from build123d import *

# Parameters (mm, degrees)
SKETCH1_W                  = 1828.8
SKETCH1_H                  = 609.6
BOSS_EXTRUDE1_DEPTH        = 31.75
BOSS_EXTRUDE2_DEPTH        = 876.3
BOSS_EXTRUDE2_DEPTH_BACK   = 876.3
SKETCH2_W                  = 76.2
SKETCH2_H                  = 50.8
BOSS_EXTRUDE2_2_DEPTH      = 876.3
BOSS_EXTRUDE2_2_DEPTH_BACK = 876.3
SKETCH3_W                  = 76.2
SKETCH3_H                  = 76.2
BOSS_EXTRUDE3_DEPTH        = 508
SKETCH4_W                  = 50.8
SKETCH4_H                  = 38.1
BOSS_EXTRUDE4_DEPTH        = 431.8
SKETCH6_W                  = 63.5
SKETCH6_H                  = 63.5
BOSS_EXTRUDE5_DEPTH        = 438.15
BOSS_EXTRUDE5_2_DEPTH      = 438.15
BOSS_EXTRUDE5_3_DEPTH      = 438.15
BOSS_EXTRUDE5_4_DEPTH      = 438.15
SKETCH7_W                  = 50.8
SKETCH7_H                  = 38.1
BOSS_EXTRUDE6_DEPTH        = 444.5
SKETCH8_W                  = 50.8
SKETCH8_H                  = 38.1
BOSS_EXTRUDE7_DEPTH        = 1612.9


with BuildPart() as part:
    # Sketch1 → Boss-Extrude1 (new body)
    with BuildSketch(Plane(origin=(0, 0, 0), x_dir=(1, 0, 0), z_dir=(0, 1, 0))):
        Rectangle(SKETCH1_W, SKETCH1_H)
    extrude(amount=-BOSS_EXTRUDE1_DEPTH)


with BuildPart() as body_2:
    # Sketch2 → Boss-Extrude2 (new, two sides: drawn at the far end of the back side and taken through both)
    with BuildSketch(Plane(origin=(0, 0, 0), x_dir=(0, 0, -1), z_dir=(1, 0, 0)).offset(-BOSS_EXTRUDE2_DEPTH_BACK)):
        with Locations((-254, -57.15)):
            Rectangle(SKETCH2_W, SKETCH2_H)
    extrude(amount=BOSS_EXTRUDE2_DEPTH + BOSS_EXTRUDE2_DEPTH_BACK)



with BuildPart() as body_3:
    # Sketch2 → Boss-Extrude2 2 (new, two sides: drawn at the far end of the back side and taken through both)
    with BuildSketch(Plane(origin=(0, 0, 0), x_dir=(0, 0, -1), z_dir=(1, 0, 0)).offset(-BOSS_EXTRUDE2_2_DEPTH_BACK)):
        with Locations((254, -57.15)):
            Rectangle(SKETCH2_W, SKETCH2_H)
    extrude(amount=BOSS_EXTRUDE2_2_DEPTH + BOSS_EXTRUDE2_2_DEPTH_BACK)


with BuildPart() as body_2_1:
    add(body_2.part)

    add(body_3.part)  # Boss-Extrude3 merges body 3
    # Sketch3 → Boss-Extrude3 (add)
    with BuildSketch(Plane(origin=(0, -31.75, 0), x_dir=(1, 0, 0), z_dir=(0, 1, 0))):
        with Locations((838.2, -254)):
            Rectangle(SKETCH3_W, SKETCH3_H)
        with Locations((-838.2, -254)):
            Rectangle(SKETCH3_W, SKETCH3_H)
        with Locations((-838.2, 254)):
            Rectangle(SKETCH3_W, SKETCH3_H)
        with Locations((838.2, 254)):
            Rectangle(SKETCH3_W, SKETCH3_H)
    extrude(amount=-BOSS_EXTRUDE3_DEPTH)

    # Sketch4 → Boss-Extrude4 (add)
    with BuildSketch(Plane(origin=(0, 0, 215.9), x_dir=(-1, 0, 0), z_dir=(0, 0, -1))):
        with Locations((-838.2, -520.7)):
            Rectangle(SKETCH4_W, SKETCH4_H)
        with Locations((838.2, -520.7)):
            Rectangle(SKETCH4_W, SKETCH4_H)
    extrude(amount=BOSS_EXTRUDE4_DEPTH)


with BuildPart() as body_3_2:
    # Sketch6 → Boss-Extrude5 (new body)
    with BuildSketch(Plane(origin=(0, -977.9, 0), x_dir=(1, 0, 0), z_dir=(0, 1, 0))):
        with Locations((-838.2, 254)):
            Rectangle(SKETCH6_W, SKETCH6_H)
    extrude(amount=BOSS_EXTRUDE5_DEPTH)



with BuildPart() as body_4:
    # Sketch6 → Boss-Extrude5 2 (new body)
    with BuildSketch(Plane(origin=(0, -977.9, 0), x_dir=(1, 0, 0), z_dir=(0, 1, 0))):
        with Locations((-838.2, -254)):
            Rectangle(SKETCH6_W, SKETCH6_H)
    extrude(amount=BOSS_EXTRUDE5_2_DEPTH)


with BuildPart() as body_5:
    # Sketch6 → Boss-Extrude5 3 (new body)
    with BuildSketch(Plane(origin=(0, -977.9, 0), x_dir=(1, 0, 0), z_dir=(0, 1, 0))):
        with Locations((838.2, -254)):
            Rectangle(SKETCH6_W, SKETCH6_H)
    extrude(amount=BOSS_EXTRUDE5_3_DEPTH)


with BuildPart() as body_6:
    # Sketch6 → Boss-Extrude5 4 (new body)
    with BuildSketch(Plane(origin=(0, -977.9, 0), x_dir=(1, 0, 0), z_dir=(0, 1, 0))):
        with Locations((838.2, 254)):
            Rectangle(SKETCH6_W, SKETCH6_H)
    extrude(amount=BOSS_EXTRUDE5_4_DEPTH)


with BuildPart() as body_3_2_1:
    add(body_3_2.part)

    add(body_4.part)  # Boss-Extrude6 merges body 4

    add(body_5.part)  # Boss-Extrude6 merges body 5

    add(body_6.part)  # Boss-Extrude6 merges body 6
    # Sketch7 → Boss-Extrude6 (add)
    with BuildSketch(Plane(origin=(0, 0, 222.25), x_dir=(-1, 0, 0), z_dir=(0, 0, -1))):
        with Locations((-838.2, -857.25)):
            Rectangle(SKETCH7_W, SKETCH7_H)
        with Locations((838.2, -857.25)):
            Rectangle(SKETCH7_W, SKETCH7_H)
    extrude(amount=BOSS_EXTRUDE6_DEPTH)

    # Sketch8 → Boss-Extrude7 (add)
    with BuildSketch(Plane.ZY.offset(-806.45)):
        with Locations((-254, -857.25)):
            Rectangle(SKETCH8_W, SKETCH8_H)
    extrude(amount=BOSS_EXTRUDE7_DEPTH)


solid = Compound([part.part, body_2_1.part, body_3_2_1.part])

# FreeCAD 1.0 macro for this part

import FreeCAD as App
import Part
import Sketcher

V = App.Vector
Q = App.Units.Quantity


def add_polygon(sketch, points):
    """Adds a closed chain of lines whose ends are joined by coincident constraints."""
    first, n = sketch.GeometryCount, len(points)
    for a, b in zip(points, points[1:] + points[:1]):
        sketch.addGeometry(Part.LineSegment(App.Vector(*a, 0), App.Vector(*b, 0)), False)
    for i in range(n):
        sketch.addConstraint(Sketcher.Constraint("Coincident", first + i, 2, first + (i + 1) % n, 1))

doc = App.newDocument("Part")
params = doc.addObject("Spreadsheet::Sheet", "Params")
for row, (alias, value) in enumerate([
    ("sketch1_width", "72 in"),
    ("sketch1_height", "24 in"),
    ("pad1_length", "1.25 in"),
    ("sketch2_width", "2 in"),
    ("sketch2_height", "3 in"),
    ("pad2_length", "34.5 in"),
    ("pad2_length2", "34.5 in"),
    ("sketch3_width", "2 in"),
    ("sketch3_height", "3 in"),
    ("pad3_length", "34.5 in"),
    ("pad3_length2", "34.5 in"),
    ("sketch4_width", "3 in"),
    ("pad4_length", "20 in"),
    ("sketch5_width", "2 in"),
    ("sketch5_height", "1.5 in"),
    ("pad5_length", "17 in"),
    ("sketch6_width", "2.5 in"),
    ("pad6_length", "17.25 in"),
    ("sketch7_width", "2.5 in"),
    ("pad7_length", "17.25 in"),
    ("sketch8_width", "2.5 in"),
    ("pad8_length", "17.25 in"),
    ("sketch9_width", "2.5 in"),
    ("pad9_length", "17.25 in"),
    ("sketch10_width", "2 in"),
    ("sketch10_height", "1.5 in"),
    ("pad10_length", "17.5 in"),
    ("sketch11_height", "2 in"),
    ("sketch11_width", "1.5 in"),
    ("pad11_length", "63.5 in"),
], start=1):
    params.set(f"A{row}", alias)
    params.set(f"B{row}", "=" + value)
    params.setAlias(f"B{row}", alias)

body = doc.addObject("PartDesign::Body", "Body")

sketch1 = body.newObject("Sketcher::SketchObject", "Sketch")
sketch1.AttachmentSupport = (doc.getObject("XZ_Plane"), [""])
sketch1.MapMode = "FlatFace"
add_polygon(sketch1, [(-914, -305), (-914, 305), (914, 305), (914, -305)])
sketch1.addConstraint(Sketcher.Constraint("Vertical", 0))
sketch1.addConstraint(Sketcher.Constraint("Horizontal", 1))
sketch1.addConstraint(Sketcher.Constraint("Vertical", 2))
sketch1.addConstraint(Sketcher.Constraint("Horizontal", 3))
sketch1.addConstraint(Sketcher.Constraint("Symmetric", 0, 2, 2, 2, -1, 1))
sketch1.addConstraint(Sketcher.Constraint("DistanceX", 1, 1, 1, 2, Q("72 in")))
sketch1.addConstraint(Sketcher.Constraint("DistanceY", 0, 1, 0, 2, Q("24 in")))
sketch1.setExpression("Constraints[9]", "Params.sketch1_width")
sketch1.setExpression("Constraints[10]", "Params.sketch1_height")
pad1 = body.newObject("PartDesign::Pad", "Pad")
pad1.Profile = sketch1
pad1.setExpression("Length", "Params.pad1_length")
body2 = doc.addObject("PartDesign::Body", "Body001")

sketch2 = body2.newObject("Sketcher::SketchObject", "Sketch001")
sketch2.AttachmentSupport = (doc.getObject("YZ_Plane001"), [""])
sketch2.MapMode = "FlatFace"
add_polygon(sketch2, [(-32, 292), (-83, 292), (-83, 216), (-32, 216)])
sketch2.addConstraint(Sketcher.Constraint("Horizontal", 0))
sketch2.addConstraint(Sketcher.Constraint("Vertical", 1))
sketch2.addConstraint(Sketcher.Constraint("Horizontal", 2))
sketch2.addConstraint(Sketcher.Constraint("Vertical", 3))
sketch2.addConstraint(Sketcher.Constraint("DistanceX", 0, 2, 0, 1, Q("2 in")))
sketch2.addConstraint(Sketcher.Constraint("DistanceY", 1, 2, 1, 1, Q("3 in")))
sketch2.addConstraint(Sketcher.Constraint("DistanceY", -1, 1, 0, 2, Q("11.5 in")))
sketch2.addConstraint(Sketcher.Constraint("DistanceX", 0, 2, -1, 1, Q("3.25 in")))
sketch2.setExpression("Constraints[8]", "Params.sketch2_width")
sketch2.setExpression("Constraints[9]", "Params.sketch2_height")
pad2 = body2.newObject("PartDesign::Pad", "Pad001")
pad2.Profile = sketch2
pad2.Type = "TwoLengths"
pad2.setExpression("Length", "Params.pad2_length")
pad2.setExpression("Length2", "Params.pad2_length2")
body3 = doc.addObject("PartDesign::Body", "Body002")

sketch3 = body3.newObject("Sketcher::SketchObject", "Sketch002")
sketch3.AttachmentSupport = (doc.getObject("YZ_Plane002"), [""])
sketch3.MapMode = "FlatFace"
add_polygon(sketch3, [(-32, -216), (-83, -216), (-83, -292), (-32, -292)])
sketch3.addConstraint(Sketcher.Constraint("Horizontal", 0))
sketch3.addConstraint(Sketcher.Constraint("Vertical", 1))
sketch3.addConstraint(Sketcher.Constraint("Horizontal", 2))
sketch3.addConstraint(Sketcher.Constraint("Vertical", 3))
sketch3.addConstraint(Sketcher.Constraint("DistanceX", 0, 2, 0, 1, Q("2 in")))
sketch3.addConstraint(Sketcher.Constraint("DistanceY", 1, 2, 1, 1, Q("3 in")))
sketch3.addConstraint(Sketcher.Constraint("DistanceY", 0, 2, -1, 1, Q("8.5 in")))
sketch3.addConstraint(Sketcher.Constraint("DistanceX", 0, 2, -1, 1, Q("3.25 in")))
sketch3.setExpression("Constraints[8]", "Params.sketch3_width")
sketch3.setExpression("Constraints[9]", "Params.sketch3_height")
pad3 = body3.newObject("PartDesign::Pad", "Pad002")
pad3.Profile = sketch3
pad3.Type = "TwoLengths"
pad3.setExpression("Length", "Params.pad3_length")
pad3.setExpression("Length2", "Params.pad3_length2")
body2.AllowCompound = True
doc.recompute()

boolean = body2.newObject("PartDesign::Boolean", "Boolean")
boolean.Type = "Fuse"
boolean.addObjects([body3])

sketch4 = body2.newObject("Sketcher::SketchObject", "Sketch003")
sketch4.AttachmentSupport = (doc.getObject("XZ_Plane001"), [""])
sketch4.MapMode = "FlatFace"
sketch4.AttachmentOffset = App.Placement(V(0, 0, 1.25 * 25.4), App.Rotation())
add_polygon(sketch4, [(800, 216), (800, 292), (876, 292), (876, 216)])
add_polygon(sketch4, [(-876, 216), (-876, 292), (-800, 292), (-800, 216)])
add_polygon(sketch4, [(-876, -292), (-876, -216), (-800, -216), (-800, -292)])
add_polygon(sketch4, [(800, -292), (800, -216), (876, -216), (876, -292)])
sketch4.addConstraint(Sketcher.Constraint("Vertical", 0))
sketch4.addConstraint(Sketcher.Constraint("Horizontal", 1))
sketch4.addConstraint(Sketcher.Constraint("Vertical", 2))
sketch4.addConstraint(Sketcher.Constraint("Horizontal", 3))
sketch4.addConstraint(Sketcher.Constraint("Vertical", 4))
sketch4.addConstraint(Sketcher.Constraint("Horizontal", 5))
sketch4.addConstraint(Sketcher.Constraint("Vertical", 6))
sketch4.addConstraint(Sketcher.Constraint("Horizontal", 7))
sketch4.addConstraint(Sketcher.Constraint("Vertical", 8))
sketch4.addConstraint(Sketcher.Constraint("Horizontal", 9))
sketch4.addConstraint(Sketcher.Constraint("Vertical", 10))
sketch4.addConstraint(Sketcher.Constraint("Horizontal", 11))
sketch4.addConstraint(Sketcher.Constraint("Vertical", 12))
sketch4.addConstraint(Sketcher.Constraint("Horizontal", 13))
sketch4.addConstraint(Sketcher.Constraint("Vertical", 14))
sketch4.addConstraint(Sketcher.Constraint("Horizontal", 15))
sketch4.addConstraint(Sketcher.Constraint("Symmetric", 2, 2, 8, 2, -1, 1))
sketch4.addConstraint(Sketcher.Constraint("Symmetric", 0, 2, 10, 2, -1, 1))
sketch4.addConstraint(Sketcher.Constraint("Symmetric", 6, 2, 12, 2, -1, 1))
sketch4.addConstraint(Sketcher.Constraint("Symmetric", 4, 2, 14, 2, -1, 1))
sketch4.addConstraint(Sketcher.Constraint("Symmetric", 1, 2, 4, 2, -2))
sketch4.addConstraint(Sketcher.Constraint("Symmetric", 3, 2, 6, 2, -2))
sketch4.addConstraint(Sketcher.Constraint("Equal", 15, 0))
sketch4.addConstraint(Sketcher.Constraint("DistanceX", 1, 1, 1, 2, Q("3 in")))
sketch4.addConstraint(Sketcher.Constraint("DistanceX", 4, 2, 0, 2, Q("66 in")))
sketch4.addConstraint(Sketcher.Constraint("DistanceY", 8, 2, 7, 2, Q("17 in")))
sketch4.setExpression("Constraints[39]", "Params.sketch4_width")
pad4 = body2.newObject("PartDesign::Pad", "Pad003")
pad4.Profile = sketch4
pad4.setExpression("Length", "Params.pad4_length")

sketch5 = body2.newObject("Sketcher::SketchObject", "Sketch004")
sketch5.AttachmentSupport = (doc.getObject("XY_Plane001"), [""])
sketch5.MapMode = "FlatFace"
sketch5.AttachmentOffset = App.Placement(V(0, 0, 8.5 * 25.4), App.Rotation())
add_polygon(sketch5, [(864, -502), (864, -540), (813, -540), (813, -502)])
add_polygon(sketch5, [(-813, -502), (-813, -540), (-864, -540), (-864, -502)])
sketch5.addConstraint(Sketcher.Constraint("Vertical", 0))
sketch5.addConstraint(Sketcher.Constraint("Horizontal", 1))
sketch5.addConstraint(Sketcher.Constraint("Vertical", 2))
sketch5.addConstraint(Sketcher.Constraint("Horizontal", 3))
sketch5.addConstraint(Sketcher.Constraint("Vertical", 4))
sketch5.addConstraint(Sketcher.Constraint("Horizontal", 5))
sketch5.addConstraint(Sketcher.Constraint("Vertical", 6))
sketch5.addConstraint(Sketcher.Constraint("Horizontal", 7))
sketch5.addConstraint(Sketcher.Constraint("Symmetric", 1, 2, 4, 2, -2))
sketch5.addConstraint(Sketcher.Constraint("Symmetric", 3, 2, 6, 2, -2))
sketch5.addConstraint(Sketcher.Constraint("DistanceX", 1, 2, 1, 1, Q("2 in")))
sketch5.addConstraint(Sketcher.Constraint("DistanceY", 0, 2, 0, 1, Q("1.5 in")))
sketch5.addConstraint(Sketcher.Constraint("DistanceX", -1, 1, 0, 2, Q("34 in")))
sketch5.addConstraint(Sketcher.Constraint("DistanceY", 0, 2, -1, 1, Q("21.25 in")))
sketch5.setExpression("Constraints[18]", "Params.sketch5_width")
sketch5.setExpression("Constraints[19]", "Params.sketch5_height")
pad5 = body2.newObject("PartDesign::Pad", "Pad004")
pad5.Profile = sketch5
pad5.setExpression("Length", "Params.pad5_length")
pad5.Reversed = True
body4 = doc.addObject("PartDesign::Body", "Body003")

sketch6 = body4.newObject("Sketcher::SketchObject", "Sketch005")
sketch6.AttachmentSupport = (doc.getObject("XZ_Plane003"), [""])
sketch6.MapMode = "FlatFace"
sketch6.AttachmentOffset = App.Placement(V(0, 0, 38.5 * 25.4), App.Rotation())
add_polygon(sketch6, [(-870, -286), (-870, -222), (-806, -222), (-806, -286)])
sketch6.addConstraint(Sketcher.Constraint("Vertical", 0))
sketch6.addConstraint(Sketcher.Constraint("Horizontal", 1))
sketch6.addConstraint(Sketcher.Constraint("Vertical", 2))
sketch6.addConstraint(Sketcher.Constraint("Horizontal", 3))
sketch6.addConstraint(Sketcher.Constraint("Equal", 3, 0))
sketch6.addConstraint(Sketcher.Constraint("DistanceX", 1, 1, 1, 2, Q("2.5 in")))
sketch6.addConstraint(Sketcher.Constraint("DistanceX", 0, 2, -1, 1, Q("34.25 in")))
sketch6.addConstraint(Sketcher.Constraint("DistanceY", 0, 2, -1, 1, Q("8.75 in")))
sketch6.setExpression("Constraints[9]", "Params.sketch6_width")
pad6 = body4.newObject("PartDesign::Pad", "Pad005")
pad6.Profile = sketch6
pad6.setExpression("Length", "Params.pad6_length")
pad6.Reversed = True
body5 = doc.addObject("PartDesign::Body", "Body004")

sketch7 = body5.newObject("Sketcher::SketchObject", "Sketch006")
sketch7.AttachmentSupport = (doc.getObject("XZ_Plane004"), [""])
sketch7.MapMode = "FlatFace"
sketch7.AttachmentOffset = App.Placement(V(0, 0, 38.5 * 25.4), App.Rotation())
add_polygon(sketch7, [(-870, 222), (-870, 286), (-806, 286), (-806, 222)])
sketch7.addConstraint(Sketcher.Constraint("Vertical", 0))
sketch7.addConstraint(Sketcher.Constraint("Horizontal", 1))
sketch7.addConstraint(Sketcher.Constraint("Vertical", 2))
sketch7.addConstraint(Sketcher.Constraint("Horizontal", 3))
sketch7.addConstraint(Sketcher.Constraint("Equal", 3, 0))
sketch7.addConstraint(Sketcher.Constraint("DistanceX", 1, 1, 1, 2, Q("2.5 in")))
sketch7.addConstraint(Sketcher.Constraint("DistanceX", 0, 2, -1, 1, Q("34.25 in")))
sketch7.addConstraint(Sketcher.Constraint("DistanceY", -1, 1, 0, 2, Q("11.25 in")))
sketch7.setExpression("Constraints[9]", "Params.sketch7_width")
pad7 = body5.newObject("PartDesign::Pad", "Pad006")
pad7.Profile = sketch7
pad7.setExpression("Length", "Params.pad7_length")
pad7.Reversed = True
body6 = doc.addObject("PartDesign::Body", "Body005")

sketch8 = body6.newObject("Sketcher::SketchObject", "Sketch007")
sketch8.AttachmentSupport = (doc.getObject("XZ_Plane005"), [""])
sketch8.MapMode = "FlatFace"
sketch8.AttachmentOffset = App.Placement(V(0, 0, 38.5 * 25.4), App.Rotation())
add_polygon(sketch8, [(806, 222), (806, 286), (870, 286), (870, 222)])
sketch8.addConstraint(Sketcher.Constraint("Vertical", 0))
sketch8.addConstraint(Sketcher.Constraint("Horizontal", 1))
sketch8.addConstraint(Sketcher.Constraint("Vertical", 2))
sketch8.addConstraint(Sketcher.Constraint("Horizontal", 3))
sketch8.addConstraint(Sketcher.Constraint("Equal", 3, 0))
sketch8.addConstraint(Sketcher.Constraint("DistanceX", 1, 1, 1, 2, Q("2.5 in")))
sketch8.addConstraint(Sketcher.Constraint("DistanceX", -1, 1, 0, 2, Q("31.75 in")))
sketch8.addConstraint(Sketcher.Constraint("DistanceY", -1, 1, 0, 2, Q("11.25 in")))
sketch8.setExpression("Constraints[9]", "Params.sketch8_width")
pad8 = body6.newObject("PartDesign::Pad", "Pad007")
pad8.Profile = sketch8
pad8.setExpression("Length", "Params.pad8_length")
pad8.Reversed = True
body7 = doc.addObject("PartDesign::Body", "Body006")

sketch9 = body7.newObject("Sketcher::SketchObject", "Sketch008")
sketch9.AttachmentSupport = (doc.getObject("XZ_Plane006"), [""])
sketch9.MapMode = "FlatFace"
sketch9.AttachmentOffset = App.Placement(V(0, 0, 38.5 * 25.4), App.Rotation())
add_polygon(sketch9, [(806, -286), (806, -222), (870, -222), (870, -286)])
sketch9.addConstraint(Sketcher.Constraint("Vertical", 0))
sketch9.addConstraint(Sketcher.Constraint("Horizontal", 1))
sketch9.addConstraint(Sketcher.Constraint("Vertical", 2))
sketch9.addConstraint(Sketcher.Constraint("Horizontal", 3))
sketch9.addConstraint(Sketcher.Constraint("Equal", 3, 0))
sketch9.addConstraint(Sketcher.Constraint("DistanceX", 1, 1, 1, 2, Q("2.5 in")))
sketch9.addConstraint(Sketcher.Constraint("DistanceX", -1, 1, 0, 2, Q("31.75 in")))
sketch9.addConstraint(Sketcher.Constraint("DistanceY", 0, 2, -1, 1, Q("8.75 in")))
sketch9.setExpression("Constraints[9]", "Params.sketch9_width")
pad9 = body7.newObject("PartDesign::Pad", "Pad008")
pad9.Profile = sketch9
pad9.setExpression("Length", "Params.pad9_length")
pad9.Reversed = True
body4.AllowCompound = True
doc.recompute()

boolean2 = body4.newObject("PartDesign::Boolean", "Boolean001")
boolean2.Type = "Fuse"
boolean2.addObjects([body5])
doc.recompute()

boolean3 = body4.newObject("PartDesign::Boolean", "Boolean002")
boolean3.Type = "Fuse"
boolean3.addObjects([body6])
doc.recompute()

boolean4 = body4.newObject("PartDesign::Boolean", "Boolean003")
boolean4.Type = "Fuse"
boolean4.addObjects([body7])

sketch10 = body4.newObject("Sketcher::SketchObject", "Sketch009")
sketch10.AttachmentSupport = (doc.getObject("XY_Plane003"), [""])
sketch10.MapMode = "FlatFace"
sketch10.AttachmentOffset = App.Placement(V(0, 0, 8.75 * 25.4), App.Rotation())
add_polygon(sketch10, [(864, -838), (864, -876), (813, -876), (813, -838)])
add_polygon(sketch10, [(-813, -838), (-813, -876), (-864, -876), (-864, -838)])
sketch10.addConstraint(Sketcher.Constraint("Vertical", 0))
sketch10.addConstraint(Sketcher.Constraint("Horizontal", 1))
sketch10.addConstraint(Sketcher.Constraint("Vertical", 2))
sketch10.addConstraint(Sketcher.Constraint("Horizontal", 3))
sketch10.addConstraint(Sketcher.Constraint("Vertical", 4))
sketch10.addConstraint(Sketcher.Constraint("Horizontal", 5))
sketch10.addConstraint(Sketcher.Constraint("Vertical", 6))
sketch10.addConstraint(Sketcher.Constraint("Horizontal", 7))
sketch10.addConstraint(Sketcher.Constraint("Symmetric", 1, 2, 4, 2, -2))
sketch10.addConstraint(Sketcher.Constraint("Symmetric", 3, 2, 6, 2, -2))
sketch10.addConstraint(Sketcher.Constraint("DistanceX", 1, 2, 1, 1, Q("2 in")))
sketch10.addConstraint(Sketcher.Constraint("DistanceY", 0, 2, 0, 1, Q("1.5 in")))
sketch10.addConstraint(Sketcher.Constraint("DistanceX", -1, 1, 0, 2, Q("34 in")))
sketch10.addConstraint(Sketcher.Constraint("DistanceY", 2, 2, -1, 1, Q("33 in")))
sketch10.setExpression("Constraints[18]", "Params.sketch10_width")
sketch10.setExpression("Constraints[19]", "Params.sketch10_height")
pad10 = body4.newObject("PartDesign::Pad", "Pad009")
pad10.Profile = sketch10
pad10.setExpression("Length", "Params.pad10_length")
pad10.Reversed = True

sketch11 = body4.newObject("Sketcher::SketchObject", "Sketch010")
sketch11.AttachmentSupport = (doc.getObject("YZ_Plane003"), [""])
sketch11.MapMode = "FlatFace"
sketch11.AttachmentOffset = App.Placement(V(0, 0, 31.75 * 25.4), App.Rotation())
add_polygon(sketch11, [(-838, -279), (-876, -279), (-876, -229), (-838, -229)])
sketch11.addConstraint(Sketcher.Constraint("Horizontal", 0))
sketch11.addConstraint(Sketcher.Constraint("Vertical", 1))
sketch11.addConstraint(Sketcher.Constraint("Horizontal", 2))
sketch11.addConstraint(Sketcher.Constraint("Vertical", 3))
sketch11.addConstraint(Sketcher.Constraint("DistanceY", 1, 1, 1, 2, Q("2 in")))
sketch11.addConstraint(Sketcher.Constraint("DistanceX", 0, 2, 0, 1, Q("1.5 in")))
sketch11.addConstraint(Sketcher.Constraint("DistanceY", 0, 2, -1, 1, Q("11 in")))
sketch11.addConstraint(Sketcher.Constraint("DistanceX", 2, 2, -1, 1, Q("33 in")))
sketch11.setExpression("Constraints[8]", "Params.sketch11_height")
sketch11.setExpression("Constraints[9]", "Params.sketch11_width")
pad11 = body4.newObject("PartDesign::Pad", "Pad010")
pad11.Profile = sketch11
pad11.setExpression("Length", "Params.pad11_length")
pad11.Reversed = True

doc.recompute()
